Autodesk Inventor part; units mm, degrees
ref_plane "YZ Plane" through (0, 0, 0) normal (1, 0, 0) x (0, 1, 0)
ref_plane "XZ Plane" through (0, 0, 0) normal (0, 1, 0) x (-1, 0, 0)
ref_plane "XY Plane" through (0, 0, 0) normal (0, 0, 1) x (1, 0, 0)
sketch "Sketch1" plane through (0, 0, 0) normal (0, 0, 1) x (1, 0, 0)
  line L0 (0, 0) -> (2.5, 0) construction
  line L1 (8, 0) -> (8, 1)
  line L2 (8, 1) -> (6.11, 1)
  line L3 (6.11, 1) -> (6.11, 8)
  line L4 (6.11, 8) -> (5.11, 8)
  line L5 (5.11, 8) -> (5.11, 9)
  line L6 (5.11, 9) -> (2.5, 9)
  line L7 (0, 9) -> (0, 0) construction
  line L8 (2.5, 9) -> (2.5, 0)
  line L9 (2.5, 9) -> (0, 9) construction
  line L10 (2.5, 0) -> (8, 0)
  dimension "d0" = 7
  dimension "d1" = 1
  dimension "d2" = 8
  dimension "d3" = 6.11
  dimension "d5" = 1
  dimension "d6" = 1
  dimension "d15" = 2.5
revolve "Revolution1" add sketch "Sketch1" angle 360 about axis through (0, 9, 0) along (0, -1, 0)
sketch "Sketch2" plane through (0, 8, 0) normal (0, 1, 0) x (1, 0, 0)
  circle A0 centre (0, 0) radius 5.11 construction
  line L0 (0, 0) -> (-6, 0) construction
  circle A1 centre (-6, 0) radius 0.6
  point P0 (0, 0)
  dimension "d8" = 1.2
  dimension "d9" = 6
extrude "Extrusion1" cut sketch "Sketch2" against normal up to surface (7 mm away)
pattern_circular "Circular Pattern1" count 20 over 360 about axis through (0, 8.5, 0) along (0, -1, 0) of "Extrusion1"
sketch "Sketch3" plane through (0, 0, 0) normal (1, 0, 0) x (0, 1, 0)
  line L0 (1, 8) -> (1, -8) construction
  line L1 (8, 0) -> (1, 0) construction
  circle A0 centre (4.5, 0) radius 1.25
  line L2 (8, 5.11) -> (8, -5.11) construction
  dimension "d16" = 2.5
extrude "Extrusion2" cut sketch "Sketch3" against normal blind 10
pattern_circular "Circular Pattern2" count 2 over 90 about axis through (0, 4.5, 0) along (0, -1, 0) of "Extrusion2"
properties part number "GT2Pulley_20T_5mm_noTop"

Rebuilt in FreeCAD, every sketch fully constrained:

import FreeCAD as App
import Part
import Sketcher

V = App.Vector
Q = App.Units.Quantity


def add_polygon(sketch, points):
    """Adds a closed chain of lines whose ends are joined by coincident constraints."""
    first, n = sketch.GeometryCount, len(points)
    for a, b in zip(points, points[1:] + points[:1]):
        sketch.addGeometry(Part.LineSegment(App.Vector(*a, 0), App.Vector(*b, 0)), False)
    for i in range(n):
        sketch.addConstraint(Sketcher.Constraint("Coincident", first + i, 2, first + (i + 1) % n, 1))

doc = App.newDocument("Part")
body = doc.addObject("PartDesign::Body", "Body")

# Sketch on XY plane
sketch1 = body.newObject("Sketcher::SketchObject", "Sketch")
sketch1.AttachmentSupport = (doc.getObject("XY_Plane"), [""])
sketch1.MapMode = "FlatFace"
add_polygon(sketch1, [(2.5, 0), (8, 0), (8, 1), (6.11, 1), (6.11, 8), (5.11, 8), (5.11, 9), (2.5, 9)])  # lines 0-7
sketch1.addConstraint([
    Sketcher.Constraint("Horizontal", 0),
    Sketcher.Constraint("Vertical", 1),
    Sketcher.Constraint("Horizontal", 2),
    Sketcher.Constraint("Vertical", 3),
    Sketcher.Constraint("Horizontal", 4),
    Sketcher.Constraint("Vertical", 5),
    Sketcher.Constraint("Horizontal", 6),
    Sketcher.Constraint("Vertical", 7),
    Sketcher.Constraint("PointOnObject", 0, 2, -1),
    Sketcher.Constraint("Equal", 4, 1),
    Sketcher.Constraint("Equal", 1, 5),
    Sketcher.Constraint("DistanceX", 4, 2, 4, 1, Q("1 mm")),
    Sketcher.Constraint("DistanceY", 3, 1, 3, 2, Q("7 mm")),
    Sketcher.Constraint("DistanceX", -1, 1, 0, 2, Q("8 mm")),
    Sketcher.Constraint("DistanceX", -1, 1, 6, 2, Q("2.5 mm")),
    Sketcher.Constraint("DistanceX", -1, 1, 2, 2, Q("6.11 mm")),
])
revolution = body.newObject("PartDesign::Revolution", "Revolution")
revolution.Profile = sketch1
revolution.ReferenceAxis = (sketch1, ["V_Axis"])
revolution.Angle = 360

# Sketch on XZ plane
sketch2 = body.newObject("Sketcher::SketchObject", "Sketch001")
sketch2.AttachmentSupport = (doc.getObject("XZ_Plane"), [""])
sketch2.MapMode = "FlatFace"
sketch2.AttachmentOffset = App.Placement(V(0, 0, -8), App.Rotation())
sketch2.addGeometry(Part.Circle(V(-6, 0, 0), V(0, 0, 1), 0.6), False)
sketch2.addConstraint([
    Sketcher.Constraint("PointOnObject", 0, 3, -1),
    Sketcher.Constraint("Diameter", 0, Q("1.2 mm")),
    Sketcher.Constraint("DistanceX", 0, 3, -1, 1, Q("6 mm")),
])
pocket1 = body.newObject("PartDesign::Pocket", "Pocket")
pocket1.Profile = sketch2
pocket1.Length = 7
pocket1.Reversed = True
doc.recompute()

polarpattern = body.newObject("PartDesign::PolarPattern", "PolarPattern")
polarpattern.Originals = [pocket1]
polarpattern.Axis = (doc.getObject("Y_Axis"), [""])
polarpattern.Angle = 360
polarpattern.Occurrences = 20
body.Tip = polarpattern

# Sketch on YZ plane
sketch3 = body.newObject("Sketcher::SketchObject", "Sketch002")
sketch3.AttachmentSupport = (doc.getObject("YZ_Plane"), [""])
sketch3.MapMode = "FlatFace"
sketch3.addGeometry(Part.Circle(V(4.5, 0, 0), V(0, 0, 1), 1.25), False)
sketch3.addConstraint([
    Sketcher.Constraint("PointOnObject", 0, 3, -1),
    Sketcher.Constraint("Diameter", 0, Q("2.5 mm")),
    Sketcher.Constraint("DistanceX", -1, 1, 0, 3, Q("4.5 mm")),
])
pocket2 = body.newObject("PartDesign::Pocket", "Pocket001")
pocket2.Profile = sketch3
pocket2.Length = 10
doc.recompute()

polarpattern2 = body.newObject("PartDesign::PolarPattern", "PolarPattern001")
polarpattern2.Originals = [pocket2]
polarpattern2.Axis = (doc.getObject("Y_Axis"), [""])
polarpattern2.Angle = 90
polarpattern2.Occurrences = 2
polarpattern2.Reversed = True
body.Tip = polarpattern2

doc.recompute()
